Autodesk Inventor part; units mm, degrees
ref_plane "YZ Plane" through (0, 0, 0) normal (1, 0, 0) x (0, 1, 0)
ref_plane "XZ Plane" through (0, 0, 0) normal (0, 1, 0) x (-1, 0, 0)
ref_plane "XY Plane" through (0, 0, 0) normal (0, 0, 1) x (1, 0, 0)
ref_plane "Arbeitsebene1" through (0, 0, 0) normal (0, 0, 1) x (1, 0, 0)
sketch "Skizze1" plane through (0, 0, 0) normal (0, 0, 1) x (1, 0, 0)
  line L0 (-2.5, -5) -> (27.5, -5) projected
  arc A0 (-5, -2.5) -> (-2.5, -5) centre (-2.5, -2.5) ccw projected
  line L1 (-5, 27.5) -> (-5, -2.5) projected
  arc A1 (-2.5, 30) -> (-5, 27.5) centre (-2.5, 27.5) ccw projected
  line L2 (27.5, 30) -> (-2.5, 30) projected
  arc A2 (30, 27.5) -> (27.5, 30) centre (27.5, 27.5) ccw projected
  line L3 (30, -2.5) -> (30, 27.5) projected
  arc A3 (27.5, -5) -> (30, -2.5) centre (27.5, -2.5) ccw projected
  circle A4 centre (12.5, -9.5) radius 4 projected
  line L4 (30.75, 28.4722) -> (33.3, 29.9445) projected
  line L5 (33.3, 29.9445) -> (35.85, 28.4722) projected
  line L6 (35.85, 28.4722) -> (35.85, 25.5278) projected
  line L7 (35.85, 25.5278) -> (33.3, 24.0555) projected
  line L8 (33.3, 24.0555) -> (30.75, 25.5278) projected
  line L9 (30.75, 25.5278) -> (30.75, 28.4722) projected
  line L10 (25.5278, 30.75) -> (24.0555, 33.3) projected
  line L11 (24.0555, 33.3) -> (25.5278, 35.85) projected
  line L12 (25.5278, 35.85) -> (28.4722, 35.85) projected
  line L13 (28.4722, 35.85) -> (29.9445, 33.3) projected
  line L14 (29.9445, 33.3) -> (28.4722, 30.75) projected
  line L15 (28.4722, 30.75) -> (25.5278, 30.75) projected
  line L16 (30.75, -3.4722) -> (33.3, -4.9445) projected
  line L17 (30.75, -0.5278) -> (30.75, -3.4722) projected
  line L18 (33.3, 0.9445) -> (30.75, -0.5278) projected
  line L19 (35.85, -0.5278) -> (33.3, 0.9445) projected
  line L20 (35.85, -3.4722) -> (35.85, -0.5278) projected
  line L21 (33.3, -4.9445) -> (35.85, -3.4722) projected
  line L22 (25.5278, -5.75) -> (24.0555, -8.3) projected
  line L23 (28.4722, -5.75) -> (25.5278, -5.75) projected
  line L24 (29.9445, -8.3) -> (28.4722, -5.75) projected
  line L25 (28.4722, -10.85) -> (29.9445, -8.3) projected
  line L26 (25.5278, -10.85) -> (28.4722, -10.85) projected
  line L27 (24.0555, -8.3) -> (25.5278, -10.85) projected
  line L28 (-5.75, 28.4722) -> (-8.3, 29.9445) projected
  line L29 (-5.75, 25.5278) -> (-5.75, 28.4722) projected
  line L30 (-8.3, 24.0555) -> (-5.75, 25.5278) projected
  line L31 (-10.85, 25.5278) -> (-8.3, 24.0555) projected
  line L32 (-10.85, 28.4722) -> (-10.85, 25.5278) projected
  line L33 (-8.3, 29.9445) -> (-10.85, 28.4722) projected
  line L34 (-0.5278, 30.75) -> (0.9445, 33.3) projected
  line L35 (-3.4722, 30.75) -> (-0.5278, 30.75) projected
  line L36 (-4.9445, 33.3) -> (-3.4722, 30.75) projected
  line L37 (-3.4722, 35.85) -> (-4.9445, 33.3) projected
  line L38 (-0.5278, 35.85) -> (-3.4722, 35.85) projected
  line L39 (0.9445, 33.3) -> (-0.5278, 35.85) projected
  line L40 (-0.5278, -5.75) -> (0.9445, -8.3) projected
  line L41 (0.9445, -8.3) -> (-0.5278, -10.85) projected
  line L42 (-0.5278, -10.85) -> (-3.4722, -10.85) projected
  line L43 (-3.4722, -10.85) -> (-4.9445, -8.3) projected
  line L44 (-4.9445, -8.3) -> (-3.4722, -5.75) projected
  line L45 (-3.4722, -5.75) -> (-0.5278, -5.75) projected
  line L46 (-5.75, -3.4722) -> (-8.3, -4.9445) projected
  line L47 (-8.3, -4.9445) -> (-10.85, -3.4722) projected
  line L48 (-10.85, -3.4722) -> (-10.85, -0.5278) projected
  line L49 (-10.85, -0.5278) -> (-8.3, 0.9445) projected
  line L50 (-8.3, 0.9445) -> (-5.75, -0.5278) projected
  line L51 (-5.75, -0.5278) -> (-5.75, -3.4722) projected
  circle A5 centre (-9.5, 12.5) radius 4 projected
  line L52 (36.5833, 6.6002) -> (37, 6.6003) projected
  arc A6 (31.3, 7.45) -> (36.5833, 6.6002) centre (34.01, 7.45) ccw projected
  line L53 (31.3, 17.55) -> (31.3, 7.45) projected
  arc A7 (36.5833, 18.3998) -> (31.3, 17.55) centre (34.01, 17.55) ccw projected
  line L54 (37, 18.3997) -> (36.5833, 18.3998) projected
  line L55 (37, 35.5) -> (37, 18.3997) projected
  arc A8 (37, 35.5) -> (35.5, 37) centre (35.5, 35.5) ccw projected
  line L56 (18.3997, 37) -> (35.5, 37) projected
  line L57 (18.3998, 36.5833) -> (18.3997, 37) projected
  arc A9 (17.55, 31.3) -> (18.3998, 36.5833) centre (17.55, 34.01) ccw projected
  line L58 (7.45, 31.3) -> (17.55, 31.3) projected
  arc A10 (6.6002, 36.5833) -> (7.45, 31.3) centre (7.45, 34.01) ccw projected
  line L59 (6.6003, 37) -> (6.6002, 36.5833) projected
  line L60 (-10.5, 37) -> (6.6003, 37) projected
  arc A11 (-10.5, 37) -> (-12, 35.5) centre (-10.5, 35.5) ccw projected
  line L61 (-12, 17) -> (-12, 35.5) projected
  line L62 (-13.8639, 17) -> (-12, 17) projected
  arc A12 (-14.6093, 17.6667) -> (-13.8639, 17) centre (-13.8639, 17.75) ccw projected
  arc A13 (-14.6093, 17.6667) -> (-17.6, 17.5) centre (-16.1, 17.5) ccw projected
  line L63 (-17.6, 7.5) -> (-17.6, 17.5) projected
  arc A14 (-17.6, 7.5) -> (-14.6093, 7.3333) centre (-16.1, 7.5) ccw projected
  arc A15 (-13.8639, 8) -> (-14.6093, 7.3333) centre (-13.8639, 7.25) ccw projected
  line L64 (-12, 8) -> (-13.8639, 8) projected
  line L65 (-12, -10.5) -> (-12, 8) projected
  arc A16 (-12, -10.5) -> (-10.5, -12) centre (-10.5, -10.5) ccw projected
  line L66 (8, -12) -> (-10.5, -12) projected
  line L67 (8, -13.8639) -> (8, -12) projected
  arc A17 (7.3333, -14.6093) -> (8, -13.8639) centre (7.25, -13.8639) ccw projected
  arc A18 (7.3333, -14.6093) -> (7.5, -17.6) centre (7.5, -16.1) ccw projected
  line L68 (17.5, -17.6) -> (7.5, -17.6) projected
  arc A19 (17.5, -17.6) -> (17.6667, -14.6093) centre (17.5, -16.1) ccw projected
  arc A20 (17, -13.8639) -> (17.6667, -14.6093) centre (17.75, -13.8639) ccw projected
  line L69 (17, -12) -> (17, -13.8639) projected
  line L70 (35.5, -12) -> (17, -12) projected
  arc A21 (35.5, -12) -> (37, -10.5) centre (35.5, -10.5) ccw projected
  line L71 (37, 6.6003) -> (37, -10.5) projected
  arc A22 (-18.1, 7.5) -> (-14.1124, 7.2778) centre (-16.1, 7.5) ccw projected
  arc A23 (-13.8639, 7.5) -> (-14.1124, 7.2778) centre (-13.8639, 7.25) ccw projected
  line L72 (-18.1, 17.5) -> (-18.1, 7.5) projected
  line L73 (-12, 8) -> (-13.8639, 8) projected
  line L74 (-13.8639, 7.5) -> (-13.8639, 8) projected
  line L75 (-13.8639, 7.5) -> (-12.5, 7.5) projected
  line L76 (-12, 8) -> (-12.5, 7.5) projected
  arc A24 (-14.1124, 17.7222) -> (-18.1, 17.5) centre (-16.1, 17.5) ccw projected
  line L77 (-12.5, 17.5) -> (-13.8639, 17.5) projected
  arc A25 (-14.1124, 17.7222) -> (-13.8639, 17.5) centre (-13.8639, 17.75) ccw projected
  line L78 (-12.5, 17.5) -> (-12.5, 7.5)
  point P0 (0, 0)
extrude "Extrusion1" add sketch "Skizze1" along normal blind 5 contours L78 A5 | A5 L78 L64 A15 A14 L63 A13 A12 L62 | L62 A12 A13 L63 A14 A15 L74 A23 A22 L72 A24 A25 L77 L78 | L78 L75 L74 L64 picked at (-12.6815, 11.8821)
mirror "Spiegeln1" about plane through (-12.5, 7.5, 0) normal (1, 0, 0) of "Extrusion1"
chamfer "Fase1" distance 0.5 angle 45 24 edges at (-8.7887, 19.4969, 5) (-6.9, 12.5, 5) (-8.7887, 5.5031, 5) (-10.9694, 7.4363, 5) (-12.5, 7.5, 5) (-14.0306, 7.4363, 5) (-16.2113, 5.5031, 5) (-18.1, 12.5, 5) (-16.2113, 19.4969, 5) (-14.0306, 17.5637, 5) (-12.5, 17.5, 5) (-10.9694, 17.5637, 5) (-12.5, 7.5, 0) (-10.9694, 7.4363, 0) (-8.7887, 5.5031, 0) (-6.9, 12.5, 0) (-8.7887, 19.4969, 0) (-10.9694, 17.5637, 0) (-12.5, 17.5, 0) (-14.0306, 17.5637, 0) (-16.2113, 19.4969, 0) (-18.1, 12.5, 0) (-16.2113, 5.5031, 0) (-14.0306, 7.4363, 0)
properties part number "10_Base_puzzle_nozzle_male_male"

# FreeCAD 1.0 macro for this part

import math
import FreeCAD as App
import Part
import Sketcher

V = App.Vector
Q = App.Units.Quantity


def edges_at(feature, points):
    """Names of the edges that pass closest to the given points."""
    edges = feature.Shape.Edges
    near = lambda p: min(range(len(edges)), key=lambda i: edges[i].distToShape(Part.Vertex(*p))[0])
    return sorted({f"Edge{near(p) + 1}" for p in points})

doc = App.newDocument("Part")
body = doc.addObject("PartDesign::Body", "Body")

sketch1 = body.newObject("Sketcher::SketchObject", "Sketch")
sketch1.AttachmentSupport = (doc.getObject("XY_Plane"), [""])
sketch1.MapMode = "FlatFace"
sketch1.addGeometry([
    Part.LineSegment(V(-12.5, 17.5, 0), V(-13.86, 17.5, 0)),
    Part.ArcOfCircle(Part.Circle(V(-13.86, 17.75, 0), V(0, 0, 1), 0.25), math.radians(-174), math.radians(-90)),
    Part.ArcOfCircle(Part.Circle(V(-16.1, 17.5, 0), V(0, 0, 1), 2), math.radians(6), math.radians(180)),
    Part.LineSegment(V(-18.1, 17.5, 0), V(-18.1, 7.5, 0)),
    Part.ArcOfCircle(Part.Circle(V(-16.1, 7.5, 0), V(0, 0, 1), 2), math.radians(180), math.radians(354)),
    Part.ArcOfCircle(Part.Circle(V(-13.86, 7.25, 0), V(0, 0, 1), 0.25), math.radians(90), math.radians(174)),
    Part.LineSegment(V(-13.86, 7.5, 0), V(-12.5, 7.5, 0)),
    Part.LineSegment(V(-12.5, 7.5, 0), V(-12.5, 17.5, 0)),
], False)
sketch1.addConstraint([
    Sketcher.Constraint("Tangent", 0, 2, 1, 2),
    Sketcher.Constraint("Tangent", 1, 1, 2, 1),
    Sketcher.Constraint("Tangent", 2, 2, 3, 1),
    Sketcher.Constraint("Tangent", 3, 2, 4, 1),
    Sketcher.Constraint("Tangent", 4, 2, 5, 2),
    Sketcher.Constraint("Tangent", 5, 1, 6, 1),
    Sketcher.Constraint("Coincident", 6, 2, 7, 1),
    Sketcher.Constraint("Coincident", 7, 2, 0, 1),
    Sketcher.Constraint("Horizontal", 0),
    Sketcher.Constraint("Vertical", 3),
    Sketcher.Constraint("Horizontal", 6),
    Sketcher.Constraint("Vertical", 7),
    Sketcher.Constraint("Equal", 2, 4),
    Sketcher.Constraint("Equal", 1, 5),
    Sketcher.Constraint("Horizontal", 2, 3, 0, 2),
    Sketcher.Constraint("Horizontal", 3, 2, 5, 1),
    Sketcher.Constraint("Radius", 2, Q("2 mm")),
    Sketcher.Constraint("DistanceY", 3, 2, 3, 1, Q("10 mm")),
    Sketcher.Constraint("Radius", 1, Q("0.25 mm")),
    Sketcher.Constraint("DistanceX", 2, 3, -1, 1, Q("16.1 mm")),
    Sketcher.Constraint("DistanceY", -1, 1, 2, 3, Q("17.5 mm")),
    Sketcher.Constraint("DistanceX", 6, 2, -1, 1, Q("12.5 mm")),
])
pad1 = body.newObject("PartDesign::Pad", "Pad")
pad1.Profile = sketch1
pad1.Length = 5
doc.recompute()

datumplane = body.newObject("PartDesign::Plane", "DatumPlane")
datumplane.AttachmentSupport = (doc.getObject("YZ_Plane"), [""])
datumplane.MapMode = "FlatFace"
datumplane.AttachmentOffset = App.Placement(V(0, 0, -12.5), App.Rotation())
mirrored = body.newObject("PartDesign::Mirrored", "Mirrored")
mirrored.Originals = [pad1]
mirrored.MirrorPlane = (datumplane, [""])
body.Tip = mirrored
doc.recompute()

chamfer = body.newObject("PartDesign::Chamfer", "Chamfer")
chamfer.Base = (mirrored, edges_at(mirrored, [
    (-8.789, 19.497, 5),
    (-6.9, 12.5, 5),
    (-8.789, 5.503, 5),
    (-10.969, 7.436, 5),
    (-12.5, 7.5, 5),
    (-14.031, 7.436, 5),
    (-16.211, 5.503, 5),
    (-18.1, 12.5, 5),
    (-16.211, 19.497, 5),
    (-14.031, 17.564, 5),
    (-12.5, 17.5, 5),
    (-10.969, 17.564, 5),
    (-12.5, 7.5, 0),
    (-10.969, 7.436, 0),
    (-8.789, 5.503, 0),
    (-6.9, 12.5, 0),
    (-8.789, 19.497, 0),
    (-10.969, 17.564, 0),
    (-12.5, 17.5, 0),
    (-14.031, 17.564, 0),
    (-16.211, 19.497, 0),
    (-18.1, 12.5, 0),
    (-16.211, 5.503, 0),
    (-14.031, 7.436, 0),
]))
chamfer.Size = 0.5

doc.recompute()
